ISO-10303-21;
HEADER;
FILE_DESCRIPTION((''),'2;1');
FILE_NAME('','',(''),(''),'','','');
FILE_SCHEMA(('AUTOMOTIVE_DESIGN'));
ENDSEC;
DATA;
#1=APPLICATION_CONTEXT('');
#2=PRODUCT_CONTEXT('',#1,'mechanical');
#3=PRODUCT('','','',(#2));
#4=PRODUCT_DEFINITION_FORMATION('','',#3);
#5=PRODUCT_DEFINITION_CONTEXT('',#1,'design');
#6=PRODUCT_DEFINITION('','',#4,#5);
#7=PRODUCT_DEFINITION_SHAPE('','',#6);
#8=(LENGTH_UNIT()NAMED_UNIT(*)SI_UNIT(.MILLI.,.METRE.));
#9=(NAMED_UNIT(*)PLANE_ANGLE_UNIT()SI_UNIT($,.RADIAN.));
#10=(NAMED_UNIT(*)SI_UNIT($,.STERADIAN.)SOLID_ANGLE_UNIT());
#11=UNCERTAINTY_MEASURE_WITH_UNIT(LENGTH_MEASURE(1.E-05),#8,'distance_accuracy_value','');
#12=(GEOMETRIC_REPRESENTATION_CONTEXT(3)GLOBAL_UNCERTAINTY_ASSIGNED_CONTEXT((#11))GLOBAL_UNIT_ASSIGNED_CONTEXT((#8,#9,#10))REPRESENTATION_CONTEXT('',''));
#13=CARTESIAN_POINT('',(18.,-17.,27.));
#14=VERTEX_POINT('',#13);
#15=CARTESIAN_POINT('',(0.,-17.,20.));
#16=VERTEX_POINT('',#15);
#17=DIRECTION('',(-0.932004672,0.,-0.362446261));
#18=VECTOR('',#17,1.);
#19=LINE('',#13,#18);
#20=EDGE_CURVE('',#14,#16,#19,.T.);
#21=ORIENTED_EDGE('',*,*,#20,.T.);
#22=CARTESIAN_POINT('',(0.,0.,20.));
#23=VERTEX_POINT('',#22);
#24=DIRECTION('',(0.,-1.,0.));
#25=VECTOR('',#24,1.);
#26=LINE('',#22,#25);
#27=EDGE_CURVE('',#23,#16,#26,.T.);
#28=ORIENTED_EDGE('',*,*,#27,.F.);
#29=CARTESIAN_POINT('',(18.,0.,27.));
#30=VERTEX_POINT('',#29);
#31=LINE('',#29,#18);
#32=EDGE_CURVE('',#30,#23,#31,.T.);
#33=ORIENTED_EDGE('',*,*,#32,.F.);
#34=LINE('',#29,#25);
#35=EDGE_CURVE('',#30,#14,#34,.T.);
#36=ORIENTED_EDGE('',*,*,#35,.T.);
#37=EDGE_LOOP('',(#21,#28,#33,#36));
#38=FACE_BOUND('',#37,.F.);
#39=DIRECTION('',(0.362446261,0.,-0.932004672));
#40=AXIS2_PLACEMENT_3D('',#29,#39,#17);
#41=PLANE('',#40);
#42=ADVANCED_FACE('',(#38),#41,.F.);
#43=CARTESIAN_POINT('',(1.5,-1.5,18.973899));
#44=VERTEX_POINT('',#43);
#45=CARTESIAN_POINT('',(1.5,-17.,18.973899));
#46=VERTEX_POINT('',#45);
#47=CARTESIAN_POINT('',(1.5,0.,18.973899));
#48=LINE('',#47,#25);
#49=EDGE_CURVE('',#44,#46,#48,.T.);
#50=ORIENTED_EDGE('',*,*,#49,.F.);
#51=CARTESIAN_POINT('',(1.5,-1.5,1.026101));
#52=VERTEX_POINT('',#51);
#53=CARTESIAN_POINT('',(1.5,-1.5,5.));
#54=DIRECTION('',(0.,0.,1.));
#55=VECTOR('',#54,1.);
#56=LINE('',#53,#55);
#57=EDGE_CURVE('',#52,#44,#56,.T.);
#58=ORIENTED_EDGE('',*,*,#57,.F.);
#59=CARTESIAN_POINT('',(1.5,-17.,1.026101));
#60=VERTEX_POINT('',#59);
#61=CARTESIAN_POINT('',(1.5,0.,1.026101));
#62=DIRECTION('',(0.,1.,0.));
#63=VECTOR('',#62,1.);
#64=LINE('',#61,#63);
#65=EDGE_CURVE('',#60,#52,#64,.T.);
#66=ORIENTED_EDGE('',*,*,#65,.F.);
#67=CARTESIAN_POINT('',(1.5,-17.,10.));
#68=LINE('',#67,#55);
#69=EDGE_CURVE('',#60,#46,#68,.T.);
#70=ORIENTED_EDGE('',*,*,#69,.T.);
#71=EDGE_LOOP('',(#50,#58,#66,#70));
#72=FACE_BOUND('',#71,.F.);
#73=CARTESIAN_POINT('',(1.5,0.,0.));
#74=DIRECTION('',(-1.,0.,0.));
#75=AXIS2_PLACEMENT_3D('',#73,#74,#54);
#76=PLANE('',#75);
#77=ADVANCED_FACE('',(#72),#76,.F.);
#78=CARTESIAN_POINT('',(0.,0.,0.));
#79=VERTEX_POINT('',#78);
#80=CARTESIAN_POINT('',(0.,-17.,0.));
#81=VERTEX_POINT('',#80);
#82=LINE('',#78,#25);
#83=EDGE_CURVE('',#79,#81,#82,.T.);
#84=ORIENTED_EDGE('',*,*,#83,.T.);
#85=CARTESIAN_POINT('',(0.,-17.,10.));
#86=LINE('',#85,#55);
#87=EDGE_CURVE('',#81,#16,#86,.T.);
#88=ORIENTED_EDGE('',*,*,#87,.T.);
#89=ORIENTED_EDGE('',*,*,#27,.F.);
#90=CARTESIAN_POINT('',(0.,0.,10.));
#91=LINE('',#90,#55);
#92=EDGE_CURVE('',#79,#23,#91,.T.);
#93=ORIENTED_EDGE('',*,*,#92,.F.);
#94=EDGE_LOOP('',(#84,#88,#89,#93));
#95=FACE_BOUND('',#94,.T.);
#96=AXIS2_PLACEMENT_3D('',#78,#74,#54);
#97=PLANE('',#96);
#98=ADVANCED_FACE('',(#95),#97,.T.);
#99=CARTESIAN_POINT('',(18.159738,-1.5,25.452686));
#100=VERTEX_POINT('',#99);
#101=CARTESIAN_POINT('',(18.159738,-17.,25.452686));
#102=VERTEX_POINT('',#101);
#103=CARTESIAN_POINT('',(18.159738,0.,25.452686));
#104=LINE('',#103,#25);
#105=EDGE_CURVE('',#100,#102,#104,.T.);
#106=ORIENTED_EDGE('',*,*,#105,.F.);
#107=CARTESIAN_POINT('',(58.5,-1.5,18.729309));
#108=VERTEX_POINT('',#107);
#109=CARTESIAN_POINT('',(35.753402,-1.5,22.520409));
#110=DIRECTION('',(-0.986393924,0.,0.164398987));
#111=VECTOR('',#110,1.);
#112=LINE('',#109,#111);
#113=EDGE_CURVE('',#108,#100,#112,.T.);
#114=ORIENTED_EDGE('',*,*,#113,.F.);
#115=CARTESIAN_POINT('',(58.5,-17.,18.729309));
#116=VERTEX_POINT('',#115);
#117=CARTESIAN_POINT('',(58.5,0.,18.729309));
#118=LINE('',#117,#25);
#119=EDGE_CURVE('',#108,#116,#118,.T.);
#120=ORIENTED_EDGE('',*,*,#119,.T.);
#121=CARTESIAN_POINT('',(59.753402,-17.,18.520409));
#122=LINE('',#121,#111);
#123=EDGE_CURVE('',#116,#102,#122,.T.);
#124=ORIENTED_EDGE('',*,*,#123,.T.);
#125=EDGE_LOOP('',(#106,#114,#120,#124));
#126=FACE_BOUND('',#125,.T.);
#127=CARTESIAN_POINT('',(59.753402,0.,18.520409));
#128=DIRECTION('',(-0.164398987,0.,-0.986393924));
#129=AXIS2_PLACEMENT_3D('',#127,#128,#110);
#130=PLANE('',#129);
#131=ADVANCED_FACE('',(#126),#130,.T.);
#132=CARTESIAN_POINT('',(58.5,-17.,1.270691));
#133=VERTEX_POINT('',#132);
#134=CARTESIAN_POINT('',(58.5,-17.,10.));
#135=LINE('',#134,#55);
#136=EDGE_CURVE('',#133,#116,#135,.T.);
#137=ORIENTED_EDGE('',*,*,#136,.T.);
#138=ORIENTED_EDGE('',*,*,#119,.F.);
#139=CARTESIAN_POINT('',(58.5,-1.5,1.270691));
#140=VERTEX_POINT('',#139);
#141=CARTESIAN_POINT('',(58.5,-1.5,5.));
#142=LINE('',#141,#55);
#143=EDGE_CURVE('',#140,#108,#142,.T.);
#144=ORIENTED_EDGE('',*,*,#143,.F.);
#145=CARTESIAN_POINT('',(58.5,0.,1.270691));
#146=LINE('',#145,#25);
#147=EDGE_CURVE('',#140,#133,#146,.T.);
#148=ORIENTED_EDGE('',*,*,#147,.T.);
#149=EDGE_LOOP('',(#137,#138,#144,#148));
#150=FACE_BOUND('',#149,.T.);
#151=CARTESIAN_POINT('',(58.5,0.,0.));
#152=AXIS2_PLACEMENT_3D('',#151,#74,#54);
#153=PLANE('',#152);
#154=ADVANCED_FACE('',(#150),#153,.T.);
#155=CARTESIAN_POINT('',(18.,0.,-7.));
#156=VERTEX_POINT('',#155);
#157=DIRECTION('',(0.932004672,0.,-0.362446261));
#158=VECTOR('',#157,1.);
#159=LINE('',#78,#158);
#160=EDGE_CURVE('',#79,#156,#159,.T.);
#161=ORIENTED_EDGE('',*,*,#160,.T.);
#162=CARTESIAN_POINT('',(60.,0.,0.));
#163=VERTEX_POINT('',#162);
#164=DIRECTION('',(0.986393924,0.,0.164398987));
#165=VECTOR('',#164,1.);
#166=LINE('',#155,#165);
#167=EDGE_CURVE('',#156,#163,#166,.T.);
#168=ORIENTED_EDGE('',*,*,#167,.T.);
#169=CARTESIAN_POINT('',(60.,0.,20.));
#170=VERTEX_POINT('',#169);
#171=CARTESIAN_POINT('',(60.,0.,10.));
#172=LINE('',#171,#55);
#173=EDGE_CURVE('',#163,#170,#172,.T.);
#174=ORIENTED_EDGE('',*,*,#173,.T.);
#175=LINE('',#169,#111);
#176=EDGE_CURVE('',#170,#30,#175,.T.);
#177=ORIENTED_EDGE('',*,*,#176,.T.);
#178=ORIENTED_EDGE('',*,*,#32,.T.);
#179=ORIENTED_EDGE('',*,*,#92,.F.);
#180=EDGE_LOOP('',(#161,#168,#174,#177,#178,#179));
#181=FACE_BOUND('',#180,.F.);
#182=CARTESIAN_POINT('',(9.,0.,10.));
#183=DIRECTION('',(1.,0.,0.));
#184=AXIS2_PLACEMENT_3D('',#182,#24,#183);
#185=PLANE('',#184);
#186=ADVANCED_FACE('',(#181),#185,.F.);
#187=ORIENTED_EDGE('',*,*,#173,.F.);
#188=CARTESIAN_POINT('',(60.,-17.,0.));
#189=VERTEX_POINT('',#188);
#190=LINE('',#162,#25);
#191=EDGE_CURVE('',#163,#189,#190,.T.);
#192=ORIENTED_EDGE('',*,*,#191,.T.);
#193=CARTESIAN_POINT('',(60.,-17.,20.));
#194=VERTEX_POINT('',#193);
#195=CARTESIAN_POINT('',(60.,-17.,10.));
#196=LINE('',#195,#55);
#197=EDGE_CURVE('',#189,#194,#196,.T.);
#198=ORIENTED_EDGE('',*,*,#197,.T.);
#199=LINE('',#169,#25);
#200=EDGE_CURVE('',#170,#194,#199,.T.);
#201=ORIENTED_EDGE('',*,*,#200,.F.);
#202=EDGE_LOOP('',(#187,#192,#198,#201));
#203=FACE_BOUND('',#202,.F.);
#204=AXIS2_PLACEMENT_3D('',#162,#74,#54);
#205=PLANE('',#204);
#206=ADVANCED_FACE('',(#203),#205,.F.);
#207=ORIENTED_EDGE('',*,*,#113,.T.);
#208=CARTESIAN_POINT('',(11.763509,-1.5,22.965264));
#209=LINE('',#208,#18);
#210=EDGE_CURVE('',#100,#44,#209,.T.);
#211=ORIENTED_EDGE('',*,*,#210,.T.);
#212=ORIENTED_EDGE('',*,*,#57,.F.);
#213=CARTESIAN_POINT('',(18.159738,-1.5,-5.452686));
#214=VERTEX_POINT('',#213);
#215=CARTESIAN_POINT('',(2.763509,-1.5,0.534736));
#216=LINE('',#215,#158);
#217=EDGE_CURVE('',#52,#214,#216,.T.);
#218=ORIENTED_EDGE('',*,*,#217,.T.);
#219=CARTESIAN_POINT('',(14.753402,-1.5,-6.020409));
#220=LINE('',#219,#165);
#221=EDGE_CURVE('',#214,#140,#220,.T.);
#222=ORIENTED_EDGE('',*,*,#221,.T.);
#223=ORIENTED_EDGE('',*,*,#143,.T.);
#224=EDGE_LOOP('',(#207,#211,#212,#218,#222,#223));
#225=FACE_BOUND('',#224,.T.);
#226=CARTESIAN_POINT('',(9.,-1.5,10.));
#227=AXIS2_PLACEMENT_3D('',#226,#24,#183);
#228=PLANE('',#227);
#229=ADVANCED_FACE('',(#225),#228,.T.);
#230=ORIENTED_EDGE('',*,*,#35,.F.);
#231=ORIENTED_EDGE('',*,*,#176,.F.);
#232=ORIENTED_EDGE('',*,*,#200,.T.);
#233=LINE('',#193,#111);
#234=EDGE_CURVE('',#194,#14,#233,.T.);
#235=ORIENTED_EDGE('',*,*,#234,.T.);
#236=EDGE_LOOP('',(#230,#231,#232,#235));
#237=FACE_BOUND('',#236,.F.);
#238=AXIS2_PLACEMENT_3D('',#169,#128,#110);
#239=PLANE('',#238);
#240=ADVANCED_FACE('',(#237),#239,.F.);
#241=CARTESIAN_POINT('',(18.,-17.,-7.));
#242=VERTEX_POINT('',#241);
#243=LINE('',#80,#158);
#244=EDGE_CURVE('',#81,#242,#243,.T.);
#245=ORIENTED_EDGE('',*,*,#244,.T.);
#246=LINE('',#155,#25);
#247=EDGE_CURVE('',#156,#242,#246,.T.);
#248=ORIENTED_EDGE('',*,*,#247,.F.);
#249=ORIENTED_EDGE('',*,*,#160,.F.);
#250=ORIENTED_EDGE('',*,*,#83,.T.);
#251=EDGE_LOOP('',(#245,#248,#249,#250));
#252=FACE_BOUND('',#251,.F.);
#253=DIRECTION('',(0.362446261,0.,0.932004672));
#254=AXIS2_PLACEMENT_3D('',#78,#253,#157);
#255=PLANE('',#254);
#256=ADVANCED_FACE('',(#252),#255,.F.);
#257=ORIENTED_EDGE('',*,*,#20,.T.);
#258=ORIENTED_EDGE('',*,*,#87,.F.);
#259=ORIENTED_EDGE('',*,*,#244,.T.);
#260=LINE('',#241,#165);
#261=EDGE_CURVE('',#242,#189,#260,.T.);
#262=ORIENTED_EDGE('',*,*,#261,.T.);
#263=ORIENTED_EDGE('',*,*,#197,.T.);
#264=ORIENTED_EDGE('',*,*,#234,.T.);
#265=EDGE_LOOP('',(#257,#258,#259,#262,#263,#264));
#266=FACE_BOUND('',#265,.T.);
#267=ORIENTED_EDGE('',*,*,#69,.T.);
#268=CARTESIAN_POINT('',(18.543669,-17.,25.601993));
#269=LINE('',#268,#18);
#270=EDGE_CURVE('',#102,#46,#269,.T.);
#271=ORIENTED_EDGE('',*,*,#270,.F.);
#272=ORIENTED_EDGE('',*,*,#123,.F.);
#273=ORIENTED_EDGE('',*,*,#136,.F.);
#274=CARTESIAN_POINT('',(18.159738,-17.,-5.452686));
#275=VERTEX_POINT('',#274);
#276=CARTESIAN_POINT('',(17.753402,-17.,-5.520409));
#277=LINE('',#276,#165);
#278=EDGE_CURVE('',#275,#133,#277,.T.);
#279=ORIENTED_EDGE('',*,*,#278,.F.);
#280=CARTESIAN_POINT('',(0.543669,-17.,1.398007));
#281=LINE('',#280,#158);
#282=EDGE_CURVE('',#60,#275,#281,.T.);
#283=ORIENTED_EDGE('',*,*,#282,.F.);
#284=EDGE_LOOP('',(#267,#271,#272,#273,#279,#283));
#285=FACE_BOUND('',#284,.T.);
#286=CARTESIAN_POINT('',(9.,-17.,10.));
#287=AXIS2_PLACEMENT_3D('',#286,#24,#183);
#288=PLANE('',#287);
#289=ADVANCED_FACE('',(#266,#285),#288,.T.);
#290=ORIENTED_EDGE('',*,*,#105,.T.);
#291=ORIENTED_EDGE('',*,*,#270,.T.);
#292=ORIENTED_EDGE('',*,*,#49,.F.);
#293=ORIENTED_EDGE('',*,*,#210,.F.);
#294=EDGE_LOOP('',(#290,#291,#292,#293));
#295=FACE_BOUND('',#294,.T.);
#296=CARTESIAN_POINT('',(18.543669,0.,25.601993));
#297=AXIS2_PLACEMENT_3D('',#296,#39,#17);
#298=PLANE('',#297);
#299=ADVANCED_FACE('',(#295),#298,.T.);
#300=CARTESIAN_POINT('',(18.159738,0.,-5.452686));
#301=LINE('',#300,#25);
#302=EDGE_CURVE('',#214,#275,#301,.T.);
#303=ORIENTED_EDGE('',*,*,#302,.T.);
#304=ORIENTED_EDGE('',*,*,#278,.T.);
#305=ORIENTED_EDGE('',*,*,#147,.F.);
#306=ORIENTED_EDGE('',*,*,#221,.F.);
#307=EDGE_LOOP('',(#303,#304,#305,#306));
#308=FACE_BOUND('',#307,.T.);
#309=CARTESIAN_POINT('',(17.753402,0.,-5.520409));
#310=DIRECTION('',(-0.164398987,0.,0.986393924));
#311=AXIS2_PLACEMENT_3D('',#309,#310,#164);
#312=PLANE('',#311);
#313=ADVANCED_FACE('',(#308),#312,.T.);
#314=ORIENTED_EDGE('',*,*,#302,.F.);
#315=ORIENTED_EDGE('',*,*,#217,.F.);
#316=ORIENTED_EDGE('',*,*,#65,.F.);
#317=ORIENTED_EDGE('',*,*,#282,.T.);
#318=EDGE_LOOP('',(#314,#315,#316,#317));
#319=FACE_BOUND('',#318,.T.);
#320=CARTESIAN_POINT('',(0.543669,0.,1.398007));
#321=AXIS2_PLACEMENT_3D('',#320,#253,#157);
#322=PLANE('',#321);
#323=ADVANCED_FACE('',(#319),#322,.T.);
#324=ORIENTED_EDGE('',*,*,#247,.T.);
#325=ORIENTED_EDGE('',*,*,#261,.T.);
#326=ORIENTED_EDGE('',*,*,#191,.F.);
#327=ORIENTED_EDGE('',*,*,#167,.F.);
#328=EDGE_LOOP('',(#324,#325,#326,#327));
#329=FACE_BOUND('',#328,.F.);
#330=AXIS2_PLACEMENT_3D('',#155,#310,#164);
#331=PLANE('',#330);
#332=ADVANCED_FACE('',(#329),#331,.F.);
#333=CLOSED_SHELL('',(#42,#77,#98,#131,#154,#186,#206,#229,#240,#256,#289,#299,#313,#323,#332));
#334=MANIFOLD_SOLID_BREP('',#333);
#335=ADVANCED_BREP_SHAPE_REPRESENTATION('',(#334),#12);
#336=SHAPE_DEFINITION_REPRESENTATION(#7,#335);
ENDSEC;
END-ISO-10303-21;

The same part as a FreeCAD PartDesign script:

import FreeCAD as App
import Part
import Sketcher

V = App.Vector
Q = App.Units.Quantity


def faces_at(feature, points):
    """Names of the faces that lie closest to the given points."""
    faces = feature.Shape.Faces
    near = lambda p: min(range(len(faces)), key=lambda i: faces[i].distToShape(Part.Vertex(*p))[0])
    return sorted({f"Face{near(p) + 1}" for p in points})

doc = App.newDocument("Part")
body = doc.addObject("PartDesign::Body", "Body")

# Sketch on XZ plane
sketch1 = doc.addObject("Sketcher::SketchObject", "Sketch")
body.addObject(sketch1)
sketch1.AttachmentSupport = (doc.XZ_Plane, [""])
sketch1.MapMode = "FlatFace"
sketch1.addGeometry([
    Part.LineSegment(V(0, 20, 0), V(0, 0, 0)),  # 0
    Part.LineSegment(V(0, 0, 0), V(18, -7, 0)),  # 1
    Part.LineSegment(V(18, -7, 0), V(60, 0, 0)),  # 2
    Part.LineSegment(V(60, 0, 0), V(60, 20, 0)),  # 3
    Part.LineSegment(V(60, 20, 0), V(18, 27, 0)),  # 4
    Part.LineSegment(V(18, 27, 0), V(0, 20, 0)),  # 5
], False)
sketch1.addConstraint([
    Sketcher.Constraint("Coincident", 0, 2, 1, 1),
    Sketcher.Constraint("Coincident", 1, 2, 2, 1),
    Sketcher.Constraint("Coincident", 2, 2, 3, 1),
    Sketcher.Constraint("Coincident", 3, 2, 4, 1),
    Sketcher.Constraint("Coincident", 4, 2, 5, 1),
    Sketcher.Constraint("Coincident", 5, 2, 0, 1),
    Sketcher.Constraint("Vertical", 0),
    Sketcher.Constraint("Vertical", 3),
    Sketcher.Constraint("Coincident", 0, 2, -1, 1),
    Sketcher.Constraint("PointOnObject", 2, 2, -1),
    Sketcher.Constraint("Horizontal", 3, 2, 5, 2),
    Sketcher.Constraint("Vertical", 1, 2, 4, 2),
    Sketcher.Constraint("Equal", 2, 4),
    Sketcher.Constraint("DistanceY", 0, 2, 0, 1, Q("20 mm")),
    Sketcher.Constraint("DistanceX", -1, 1, 1, 2, Q("18 mm")),
    Sketcher.Constraint("DistanceY", 1, 2, -1, 1, Q("7 mm")),
    Sketcher.Constraint("DistanceX", -1, 1, 2, 2, Q("60 mm")),
])
pad1 = doc.addObject("PartDesign::Pad", "Pad")
body.addObject(pad1)
pad1.Profile = sketch1
pad1.Length = 17
doc.recompute()

thickness = doc.addObject("PartDesign::Thickness", "Thickness")
body.addObject(thickness)
thickness.Base = (pad1, faces_at(pad1, [(30, -17, 10)]))
thickness.Value = 1.5
thickness.Reversed = True
thickness.Join = "Arc"

doc.recompute()
